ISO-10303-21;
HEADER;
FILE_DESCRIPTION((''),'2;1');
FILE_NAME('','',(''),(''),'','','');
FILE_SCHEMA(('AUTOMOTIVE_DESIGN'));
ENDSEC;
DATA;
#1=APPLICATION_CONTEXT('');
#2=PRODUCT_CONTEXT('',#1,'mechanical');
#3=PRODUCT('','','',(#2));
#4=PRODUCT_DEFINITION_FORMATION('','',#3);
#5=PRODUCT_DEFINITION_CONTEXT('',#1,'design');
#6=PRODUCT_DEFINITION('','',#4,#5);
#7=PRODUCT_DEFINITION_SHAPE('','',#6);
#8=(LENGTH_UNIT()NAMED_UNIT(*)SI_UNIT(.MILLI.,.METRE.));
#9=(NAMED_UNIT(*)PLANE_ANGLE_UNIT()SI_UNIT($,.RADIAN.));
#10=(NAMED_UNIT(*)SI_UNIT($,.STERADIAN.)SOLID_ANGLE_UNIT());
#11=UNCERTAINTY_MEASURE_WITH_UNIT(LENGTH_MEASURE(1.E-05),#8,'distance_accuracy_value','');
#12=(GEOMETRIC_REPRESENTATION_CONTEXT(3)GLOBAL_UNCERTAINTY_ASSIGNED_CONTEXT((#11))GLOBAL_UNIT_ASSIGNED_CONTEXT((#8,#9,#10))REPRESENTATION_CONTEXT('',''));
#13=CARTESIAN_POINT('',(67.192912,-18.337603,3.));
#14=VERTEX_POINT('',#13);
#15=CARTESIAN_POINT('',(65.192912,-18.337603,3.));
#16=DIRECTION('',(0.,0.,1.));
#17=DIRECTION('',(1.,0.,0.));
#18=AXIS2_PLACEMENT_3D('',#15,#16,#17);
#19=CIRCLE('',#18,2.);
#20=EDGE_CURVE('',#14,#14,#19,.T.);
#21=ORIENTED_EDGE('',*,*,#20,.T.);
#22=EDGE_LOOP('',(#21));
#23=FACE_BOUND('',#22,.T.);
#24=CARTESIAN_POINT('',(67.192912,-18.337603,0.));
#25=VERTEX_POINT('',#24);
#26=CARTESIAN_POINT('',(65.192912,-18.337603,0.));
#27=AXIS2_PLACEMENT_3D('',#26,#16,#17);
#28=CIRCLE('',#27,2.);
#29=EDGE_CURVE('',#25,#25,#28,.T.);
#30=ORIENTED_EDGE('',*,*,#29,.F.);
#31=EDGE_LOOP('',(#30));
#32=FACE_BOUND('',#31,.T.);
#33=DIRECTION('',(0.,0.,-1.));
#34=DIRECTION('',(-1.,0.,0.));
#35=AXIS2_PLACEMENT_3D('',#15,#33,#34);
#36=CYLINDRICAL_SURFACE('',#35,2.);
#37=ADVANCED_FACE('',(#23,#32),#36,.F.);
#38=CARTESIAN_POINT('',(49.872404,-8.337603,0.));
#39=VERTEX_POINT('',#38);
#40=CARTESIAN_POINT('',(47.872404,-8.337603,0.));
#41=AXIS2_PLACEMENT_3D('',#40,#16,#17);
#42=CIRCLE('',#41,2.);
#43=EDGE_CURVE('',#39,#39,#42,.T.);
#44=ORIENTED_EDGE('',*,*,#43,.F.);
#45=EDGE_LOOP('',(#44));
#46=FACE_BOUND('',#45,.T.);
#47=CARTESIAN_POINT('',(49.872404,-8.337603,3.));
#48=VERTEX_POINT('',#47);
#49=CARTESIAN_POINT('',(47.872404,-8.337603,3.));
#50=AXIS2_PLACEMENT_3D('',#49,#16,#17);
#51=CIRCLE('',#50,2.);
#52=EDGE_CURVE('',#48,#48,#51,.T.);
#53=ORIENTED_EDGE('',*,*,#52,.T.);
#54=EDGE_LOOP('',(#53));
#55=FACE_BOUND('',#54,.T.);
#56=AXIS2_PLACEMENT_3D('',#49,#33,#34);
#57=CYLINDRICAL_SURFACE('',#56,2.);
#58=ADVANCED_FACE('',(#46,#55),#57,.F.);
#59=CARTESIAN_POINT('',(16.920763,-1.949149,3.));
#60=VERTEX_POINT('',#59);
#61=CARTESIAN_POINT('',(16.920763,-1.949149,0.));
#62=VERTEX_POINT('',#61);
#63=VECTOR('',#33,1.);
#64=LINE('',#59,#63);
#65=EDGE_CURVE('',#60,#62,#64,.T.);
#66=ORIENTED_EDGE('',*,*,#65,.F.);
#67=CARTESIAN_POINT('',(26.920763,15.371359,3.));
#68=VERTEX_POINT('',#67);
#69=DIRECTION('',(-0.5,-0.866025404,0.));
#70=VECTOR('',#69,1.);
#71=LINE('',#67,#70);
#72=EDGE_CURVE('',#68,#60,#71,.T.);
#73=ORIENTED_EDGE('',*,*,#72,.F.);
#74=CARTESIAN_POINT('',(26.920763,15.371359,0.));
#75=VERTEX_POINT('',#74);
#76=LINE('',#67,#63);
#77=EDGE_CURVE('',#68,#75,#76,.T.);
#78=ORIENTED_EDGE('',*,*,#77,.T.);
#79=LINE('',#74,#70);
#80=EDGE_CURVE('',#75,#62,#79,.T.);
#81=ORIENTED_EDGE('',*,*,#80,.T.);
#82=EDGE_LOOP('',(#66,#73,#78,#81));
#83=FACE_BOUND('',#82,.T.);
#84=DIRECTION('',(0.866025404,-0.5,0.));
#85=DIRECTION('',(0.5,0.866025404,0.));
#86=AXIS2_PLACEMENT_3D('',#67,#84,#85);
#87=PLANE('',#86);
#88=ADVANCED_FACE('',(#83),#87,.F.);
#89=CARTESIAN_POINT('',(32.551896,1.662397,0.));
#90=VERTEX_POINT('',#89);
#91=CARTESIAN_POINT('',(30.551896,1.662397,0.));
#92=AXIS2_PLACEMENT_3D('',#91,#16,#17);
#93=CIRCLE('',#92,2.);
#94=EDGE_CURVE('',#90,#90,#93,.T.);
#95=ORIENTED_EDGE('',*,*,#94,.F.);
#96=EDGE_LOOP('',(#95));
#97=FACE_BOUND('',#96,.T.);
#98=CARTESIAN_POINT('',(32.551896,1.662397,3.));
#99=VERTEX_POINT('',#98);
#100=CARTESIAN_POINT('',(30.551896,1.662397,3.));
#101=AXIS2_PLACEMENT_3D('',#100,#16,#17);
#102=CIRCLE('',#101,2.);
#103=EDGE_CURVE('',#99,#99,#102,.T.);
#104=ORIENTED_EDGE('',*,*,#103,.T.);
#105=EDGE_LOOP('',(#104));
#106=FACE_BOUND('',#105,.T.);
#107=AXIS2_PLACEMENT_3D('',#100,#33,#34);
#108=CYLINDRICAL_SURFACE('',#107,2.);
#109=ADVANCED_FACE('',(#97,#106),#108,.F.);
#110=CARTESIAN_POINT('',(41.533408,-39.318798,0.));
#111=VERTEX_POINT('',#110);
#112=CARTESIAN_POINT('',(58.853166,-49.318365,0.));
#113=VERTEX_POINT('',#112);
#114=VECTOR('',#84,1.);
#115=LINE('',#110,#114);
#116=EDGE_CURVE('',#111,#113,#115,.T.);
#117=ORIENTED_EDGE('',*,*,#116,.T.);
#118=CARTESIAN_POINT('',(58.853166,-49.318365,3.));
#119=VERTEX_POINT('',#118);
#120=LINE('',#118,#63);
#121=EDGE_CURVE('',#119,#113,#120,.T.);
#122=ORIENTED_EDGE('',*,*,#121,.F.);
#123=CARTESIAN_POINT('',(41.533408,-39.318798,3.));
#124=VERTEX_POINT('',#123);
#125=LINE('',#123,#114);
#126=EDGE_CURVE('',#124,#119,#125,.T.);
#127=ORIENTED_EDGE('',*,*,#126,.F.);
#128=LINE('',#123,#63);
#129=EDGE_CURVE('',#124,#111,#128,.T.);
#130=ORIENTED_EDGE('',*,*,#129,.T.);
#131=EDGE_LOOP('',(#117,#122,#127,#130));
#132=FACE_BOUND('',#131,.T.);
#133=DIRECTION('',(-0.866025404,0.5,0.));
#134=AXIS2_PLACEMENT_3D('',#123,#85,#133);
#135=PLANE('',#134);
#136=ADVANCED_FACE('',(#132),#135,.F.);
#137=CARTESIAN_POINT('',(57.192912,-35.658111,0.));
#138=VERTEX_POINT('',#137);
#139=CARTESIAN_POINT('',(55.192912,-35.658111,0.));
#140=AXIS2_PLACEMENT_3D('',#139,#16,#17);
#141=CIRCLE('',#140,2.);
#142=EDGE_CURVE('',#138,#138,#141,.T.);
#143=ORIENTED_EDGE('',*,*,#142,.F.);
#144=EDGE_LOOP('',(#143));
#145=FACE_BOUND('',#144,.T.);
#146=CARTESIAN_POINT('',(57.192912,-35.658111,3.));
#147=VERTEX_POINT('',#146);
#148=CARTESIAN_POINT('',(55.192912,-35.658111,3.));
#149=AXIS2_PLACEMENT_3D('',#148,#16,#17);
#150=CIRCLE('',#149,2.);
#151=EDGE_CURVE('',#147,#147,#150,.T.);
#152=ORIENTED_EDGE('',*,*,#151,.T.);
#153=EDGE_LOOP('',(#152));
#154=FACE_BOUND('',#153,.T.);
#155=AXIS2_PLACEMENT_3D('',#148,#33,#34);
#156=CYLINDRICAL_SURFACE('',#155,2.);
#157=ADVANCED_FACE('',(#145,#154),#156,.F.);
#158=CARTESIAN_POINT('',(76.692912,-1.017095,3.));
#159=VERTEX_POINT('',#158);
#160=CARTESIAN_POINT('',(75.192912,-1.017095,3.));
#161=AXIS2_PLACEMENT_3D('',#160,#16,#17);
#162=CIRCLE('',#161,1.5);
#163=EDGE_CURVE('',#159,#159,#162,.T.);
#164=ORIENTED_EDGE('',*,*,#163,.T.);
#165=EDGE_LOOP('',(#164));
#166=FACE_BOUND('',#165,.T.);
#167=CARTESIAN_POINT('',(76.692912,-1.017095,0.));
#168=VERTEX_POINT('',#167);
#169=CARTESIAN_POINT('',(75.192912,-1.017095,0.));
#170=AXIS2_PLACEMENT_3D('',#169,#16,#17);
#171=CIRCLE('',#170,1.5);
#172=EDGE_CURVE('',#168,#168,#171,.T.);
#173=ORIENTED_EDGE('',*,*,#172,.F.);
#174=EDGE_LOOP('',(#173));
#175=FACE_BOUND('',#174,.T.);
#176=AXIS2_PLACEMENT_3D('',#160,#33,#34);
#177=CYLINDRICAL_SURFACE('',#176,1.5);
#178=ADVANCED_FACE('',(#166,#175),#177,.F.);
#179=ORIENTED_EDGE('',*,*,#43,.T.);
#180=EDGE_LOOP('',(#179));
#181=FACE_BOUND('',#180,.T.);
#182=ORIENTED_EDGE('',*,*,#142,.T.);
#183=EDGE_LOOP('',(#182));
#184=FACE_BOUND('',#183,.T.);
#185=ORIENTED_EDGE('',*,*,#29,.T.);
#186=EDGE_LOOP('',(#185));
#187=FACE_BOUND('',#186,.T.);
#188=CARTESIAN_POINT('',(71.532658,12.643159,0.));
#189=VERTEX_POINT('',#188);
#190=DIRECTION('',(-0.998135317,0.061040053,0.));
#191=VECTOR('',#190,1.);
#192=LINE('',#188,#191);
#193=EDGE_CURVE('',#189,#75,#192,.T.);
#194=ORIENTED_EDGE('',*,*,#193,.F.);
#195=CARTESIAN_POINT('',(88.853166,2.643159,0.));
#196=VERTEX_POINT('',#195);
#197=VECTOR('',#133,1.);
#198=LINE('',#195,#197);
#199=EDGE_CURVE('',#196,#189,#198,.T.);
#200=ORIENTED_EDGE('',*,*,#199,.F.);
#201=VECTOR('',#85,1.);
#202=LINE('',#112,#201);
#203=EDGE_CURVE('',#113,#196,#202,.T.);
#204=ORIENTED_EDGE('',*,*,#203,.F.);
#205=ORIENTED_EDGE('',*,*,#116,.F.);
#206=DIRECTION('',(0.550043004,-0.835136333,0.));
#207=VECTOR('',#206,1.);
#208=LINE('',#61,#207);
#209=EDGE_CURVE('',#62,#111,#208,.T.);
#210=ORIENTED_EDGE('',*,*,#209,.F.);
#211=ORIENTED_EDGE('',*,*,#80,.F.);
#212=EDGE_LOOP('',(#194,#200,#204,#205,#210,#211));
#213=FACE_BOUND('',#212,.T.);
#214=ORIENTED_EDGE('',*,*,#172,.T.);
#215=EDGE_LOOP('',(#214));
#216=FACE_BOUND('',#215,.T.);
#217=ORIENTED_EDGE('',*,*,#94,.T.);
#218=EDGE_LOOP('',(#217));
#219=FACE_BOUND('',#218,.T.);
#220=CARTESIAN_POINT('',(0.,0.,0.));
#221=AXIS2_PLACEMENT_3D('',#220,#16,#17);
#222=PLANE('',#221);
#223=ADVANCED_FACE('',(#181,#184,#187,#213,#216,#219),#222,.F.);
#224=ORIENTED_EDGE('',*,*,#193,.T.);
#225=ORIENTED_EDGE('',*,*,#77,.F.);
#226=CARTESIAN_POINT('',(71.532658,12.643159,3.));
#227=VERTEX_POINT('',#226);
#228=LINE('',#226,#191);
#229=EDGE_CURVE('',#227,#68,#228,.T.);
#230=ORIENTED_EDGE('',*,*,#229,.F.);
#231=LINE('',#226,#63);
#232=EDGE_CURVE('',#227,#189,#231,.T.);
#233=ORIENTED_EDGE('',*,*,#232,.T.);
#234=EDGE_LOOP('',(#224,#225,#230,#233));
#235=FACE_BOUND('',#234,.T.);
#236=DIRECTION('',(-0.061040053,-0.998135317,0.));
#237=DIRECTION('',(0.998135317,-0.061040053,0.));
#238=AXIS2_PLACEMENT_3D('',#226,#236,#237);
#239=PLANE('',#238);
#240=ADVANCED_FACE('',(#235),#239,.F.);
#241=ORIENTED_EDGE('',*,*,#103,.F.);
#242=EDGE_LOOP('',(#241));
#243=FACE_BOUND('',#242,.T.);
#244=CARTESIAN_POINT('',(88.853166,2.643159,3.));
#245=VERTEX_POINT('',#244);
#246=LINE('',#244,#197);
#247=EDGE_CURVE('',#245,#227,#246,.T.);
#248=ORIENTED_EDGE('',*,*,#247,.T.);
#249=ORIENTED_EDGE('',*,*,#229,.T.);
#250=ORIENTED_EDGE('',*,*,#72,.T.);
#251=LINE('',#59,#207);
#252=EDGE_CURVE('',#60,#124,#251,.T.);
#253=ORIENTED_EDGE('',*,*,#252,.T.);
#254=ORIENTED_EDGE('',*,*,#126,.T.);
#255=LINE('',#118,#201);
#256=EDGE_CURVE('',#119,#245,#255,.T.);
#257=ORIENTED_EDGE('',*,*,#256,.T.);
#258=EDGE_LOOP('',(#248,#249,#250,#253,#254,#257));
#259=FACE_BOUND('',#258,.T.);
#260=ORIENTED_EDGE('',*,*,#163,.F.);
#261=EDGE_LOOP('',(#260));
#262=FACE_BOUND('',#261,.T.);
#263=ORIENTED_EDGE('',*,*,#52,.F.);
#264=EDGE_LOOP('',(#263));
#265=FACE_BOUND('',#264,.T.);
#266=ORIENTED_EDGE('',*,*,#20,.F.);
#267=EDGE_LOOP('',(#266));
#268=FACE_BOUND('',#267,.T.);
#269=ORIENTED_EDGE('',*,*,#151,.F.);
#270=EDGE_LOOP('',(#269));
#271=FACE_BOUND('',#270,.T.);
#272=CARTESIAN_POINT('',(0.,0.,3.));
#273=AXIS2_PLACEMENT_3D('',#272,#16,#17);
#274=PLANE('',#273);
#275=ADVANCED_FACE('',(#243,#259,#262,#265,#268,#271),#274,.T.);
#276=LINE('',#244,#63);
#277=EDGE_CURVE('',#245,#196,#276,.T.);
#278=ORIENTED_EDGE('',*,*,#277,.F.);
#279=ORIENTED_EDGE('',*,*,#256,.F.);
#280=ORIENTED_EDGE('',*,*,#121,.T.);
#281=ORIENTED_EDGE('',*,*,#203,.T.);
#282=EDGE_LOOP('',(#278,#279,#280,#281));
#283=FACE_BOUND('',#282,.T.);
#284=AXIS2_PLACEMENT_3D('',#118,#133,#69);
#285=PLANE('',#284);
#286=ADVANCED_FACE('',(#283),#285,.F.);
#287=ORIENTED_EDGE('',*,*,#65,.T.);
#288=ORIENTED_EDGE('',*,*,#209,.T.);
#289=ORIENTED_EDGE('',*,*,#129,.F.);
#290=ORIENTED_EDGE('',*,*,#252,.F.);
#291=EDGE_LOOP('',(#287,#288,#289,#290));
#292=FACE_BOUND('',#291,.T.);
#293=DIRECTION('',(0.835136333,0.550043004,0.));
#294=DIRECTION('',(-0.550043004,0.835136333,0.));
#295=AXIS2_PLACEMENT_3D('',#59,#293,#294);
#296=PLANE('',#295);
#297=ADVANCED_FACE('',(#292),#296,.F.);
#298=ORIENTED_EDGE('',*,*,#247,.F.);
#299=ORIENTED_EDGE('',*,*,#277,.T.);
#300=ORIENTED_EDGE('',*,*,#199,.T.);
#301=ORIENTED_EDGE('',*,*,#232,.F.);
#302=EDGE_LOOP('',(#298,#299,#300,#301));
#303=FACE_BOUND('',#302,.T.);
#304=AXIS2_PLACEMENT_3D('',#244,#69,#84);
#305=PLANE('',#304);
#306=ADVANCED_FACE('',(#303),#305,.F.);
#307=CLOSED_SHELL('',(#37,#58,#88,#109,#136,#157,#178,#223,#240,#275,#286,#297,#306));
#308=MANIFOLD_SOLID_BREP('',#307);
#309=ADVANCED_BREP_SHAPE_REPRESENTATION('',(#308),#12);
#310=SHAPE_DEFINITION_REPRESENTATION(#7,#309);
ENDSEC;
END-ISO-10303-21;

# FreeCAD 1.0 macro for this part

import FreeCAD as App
import Part
import Sketcher
from FreeCAD import Vector
Q = App.Units.Quantity


def add_polygon(sketch, points):
    """Adds a closed chain of lines whose ends are joined by coincident constraints."""
    first, n = sketch.GeometryCount, len(points)
    for a, b in zip(points, points[1:] + points[:1]):
        sketch.addGeometry(Part.LineSegment(App.Vector(*a, 0), App.Vector(*b, 0)), False)
    for i in range(n):
        sketch.addConstraint(Sketcher.Constraint("Coincident", first + i, 2, first + (i + 1) % n, 1))

doc = App.newDocument("Part")
params = doc.addObject("Spreadsheet::Sheet", "Params")
for row, (alias, value) in enumerate([
    ("sketch1_diameter", "4 mm"),
    ("sketch1_diameter2", "3 mm"),
    ("sketch1_length", "60 mm"),
    ("sketch1_length2", "20 mm"),
    ("pad1_length", "3 mm"),
], start=1):
    params.set(f"A{row}", alias)
    params.set(f"B{row}", "=" + value)
    params.setAlias(f"B{row}", alias)

body = doc.addObject("PartDesign::Body", "Body")

sketch1 = body.newObject("Sketcher::SketchObject", "Sketch")
sketch1.AttachmentSupport = (doc.getObject("XY_Plane"), [""])
sketch1.MapMode = "FlatFace"
add_polygon(sketch1, [(58.9, -49.3), (88.9, 2.6), (71.5, 12.6), (26.9, 15.4), (16.9, -1.9), (41.5, -39.3)])
sketch1.addGeometry(Part.Circle(Vector(55.2, -35.7, 0), Vector(0, 0, 1), 2), False)
sketch1.addGeometry(Part.Circle(Vector(65.2, -18.3, 0), Vector(0, 0, 1), 2), False)
sketch1.addGeometry(Part.Circle(Vector(47.9, -8.3, 0), Vector(0, 0, 1), 2), False)
sketch1.addGeometry(Part.Circle(Vector(30.6, 1.7, 0), Vector(0, 0, 1), 2), False)
sketch1.addGeometry(Part.Circle(Vector(75.2, -1, 0), Vector(0, 0, 1), 1.5), False)
sketch1.addConstraint([
    Sketcher.Constraint("Equal", 6, 7),
    Sketcher.Constraint("Equal", 7, 8),
    Sketcher.Constraint("Equal", 8, 9),
    Sketcher.Constraint("Perpendicular", 0, 1),
    Sketcher.Constraint("Perpendicular", 1, 3),
    Sketcher.Constraint("Perpendicular", 3, 5),
    Sketcher.Constraint("Equal", 1, 3),
    Sketcher.Constraint("Diameter", 6, Q("4 mm")),
    Sketcher.Constraint("Diameter", 10, Q("3 mm")),
    Sketcher.Constraint("Angle", 0, Q("60 deg")),
    Sketcher.Constraint("Distance", 0, Q("60 mm")),
    Sketcher.Constraint("Distance", 1, Q("20 mm")),
    Sketcher.Constraint("DistanceX", 6, 3, 7, 3, Q("10 mm")),
    Sketcher.Constraint("DistanceY", 7, 3, 8, 3, Q("10 mm")),
    Sketcher.Constraint("DistanceY", 8, 3, 9, 3, Q("10 mm")),
    Sketcher.Constraint("DistanceX", 7, 3, 10, 3, Q("10 mm")),
    Sketcher.Constraint("DistanceY", 4, 2, -1, 1, Q("39.318798 mm")),
    Sketcher.Constraint("DistanceY", 1, 2, 2, 2, Q("2.7282 mm")),
    Sketcher.Constraint("DistanceX", -1, 1, 6, 3, Q("55.192912 mm")),
    Sketcher.Constraint("DistanceY", 6, 3, -1, 1, Q("35.658111 mm")),
    Sketcher.Constraint("DistanceY", -1, 1, 0, 2, Q("2.643159 mm")),
    Sketcher.Constraint("DistanceY", 6, 3, 7, 3, Q("17.320508 mm")),
    Sketcher.Constraint("DistanceX", 8, 3, 7, 3, Q("17.320508 mm")),
    Sketcher.Constraint("DistanceX", 9, 3, 8, 3, Q("17.320508 mm")),
    Sketcher.Constraint("DistanceY", 7, 3, 10, 3, Q("17.320508 mm")),
    Sketcher.Constraint("DistanceX", 9, 3, 0, 2, Q("58.30127 mm")),
    Sketcher.Constraint("DistanceX", 2, 2, 8, 3, Q("20.951641 mm")),
])
sketch1.setExpression("Constraints[13]", "Params.sketch1_diameter")
sketch1.setExpression("Constraints[14]", "Params.sketch1_diameter2")
sketch1.setExpression("Constraints[16]", "Params.sketch1_length")
sketch1.setExpression("Constraints[17]", "Params.sketch1_length2")
pad1 = body.newObject("PartDesign::Pad", "Pad")
pad1.Profile = sketch1
pad1.setExpression("Length", "Params.pad1_length")

doc.recompute()
